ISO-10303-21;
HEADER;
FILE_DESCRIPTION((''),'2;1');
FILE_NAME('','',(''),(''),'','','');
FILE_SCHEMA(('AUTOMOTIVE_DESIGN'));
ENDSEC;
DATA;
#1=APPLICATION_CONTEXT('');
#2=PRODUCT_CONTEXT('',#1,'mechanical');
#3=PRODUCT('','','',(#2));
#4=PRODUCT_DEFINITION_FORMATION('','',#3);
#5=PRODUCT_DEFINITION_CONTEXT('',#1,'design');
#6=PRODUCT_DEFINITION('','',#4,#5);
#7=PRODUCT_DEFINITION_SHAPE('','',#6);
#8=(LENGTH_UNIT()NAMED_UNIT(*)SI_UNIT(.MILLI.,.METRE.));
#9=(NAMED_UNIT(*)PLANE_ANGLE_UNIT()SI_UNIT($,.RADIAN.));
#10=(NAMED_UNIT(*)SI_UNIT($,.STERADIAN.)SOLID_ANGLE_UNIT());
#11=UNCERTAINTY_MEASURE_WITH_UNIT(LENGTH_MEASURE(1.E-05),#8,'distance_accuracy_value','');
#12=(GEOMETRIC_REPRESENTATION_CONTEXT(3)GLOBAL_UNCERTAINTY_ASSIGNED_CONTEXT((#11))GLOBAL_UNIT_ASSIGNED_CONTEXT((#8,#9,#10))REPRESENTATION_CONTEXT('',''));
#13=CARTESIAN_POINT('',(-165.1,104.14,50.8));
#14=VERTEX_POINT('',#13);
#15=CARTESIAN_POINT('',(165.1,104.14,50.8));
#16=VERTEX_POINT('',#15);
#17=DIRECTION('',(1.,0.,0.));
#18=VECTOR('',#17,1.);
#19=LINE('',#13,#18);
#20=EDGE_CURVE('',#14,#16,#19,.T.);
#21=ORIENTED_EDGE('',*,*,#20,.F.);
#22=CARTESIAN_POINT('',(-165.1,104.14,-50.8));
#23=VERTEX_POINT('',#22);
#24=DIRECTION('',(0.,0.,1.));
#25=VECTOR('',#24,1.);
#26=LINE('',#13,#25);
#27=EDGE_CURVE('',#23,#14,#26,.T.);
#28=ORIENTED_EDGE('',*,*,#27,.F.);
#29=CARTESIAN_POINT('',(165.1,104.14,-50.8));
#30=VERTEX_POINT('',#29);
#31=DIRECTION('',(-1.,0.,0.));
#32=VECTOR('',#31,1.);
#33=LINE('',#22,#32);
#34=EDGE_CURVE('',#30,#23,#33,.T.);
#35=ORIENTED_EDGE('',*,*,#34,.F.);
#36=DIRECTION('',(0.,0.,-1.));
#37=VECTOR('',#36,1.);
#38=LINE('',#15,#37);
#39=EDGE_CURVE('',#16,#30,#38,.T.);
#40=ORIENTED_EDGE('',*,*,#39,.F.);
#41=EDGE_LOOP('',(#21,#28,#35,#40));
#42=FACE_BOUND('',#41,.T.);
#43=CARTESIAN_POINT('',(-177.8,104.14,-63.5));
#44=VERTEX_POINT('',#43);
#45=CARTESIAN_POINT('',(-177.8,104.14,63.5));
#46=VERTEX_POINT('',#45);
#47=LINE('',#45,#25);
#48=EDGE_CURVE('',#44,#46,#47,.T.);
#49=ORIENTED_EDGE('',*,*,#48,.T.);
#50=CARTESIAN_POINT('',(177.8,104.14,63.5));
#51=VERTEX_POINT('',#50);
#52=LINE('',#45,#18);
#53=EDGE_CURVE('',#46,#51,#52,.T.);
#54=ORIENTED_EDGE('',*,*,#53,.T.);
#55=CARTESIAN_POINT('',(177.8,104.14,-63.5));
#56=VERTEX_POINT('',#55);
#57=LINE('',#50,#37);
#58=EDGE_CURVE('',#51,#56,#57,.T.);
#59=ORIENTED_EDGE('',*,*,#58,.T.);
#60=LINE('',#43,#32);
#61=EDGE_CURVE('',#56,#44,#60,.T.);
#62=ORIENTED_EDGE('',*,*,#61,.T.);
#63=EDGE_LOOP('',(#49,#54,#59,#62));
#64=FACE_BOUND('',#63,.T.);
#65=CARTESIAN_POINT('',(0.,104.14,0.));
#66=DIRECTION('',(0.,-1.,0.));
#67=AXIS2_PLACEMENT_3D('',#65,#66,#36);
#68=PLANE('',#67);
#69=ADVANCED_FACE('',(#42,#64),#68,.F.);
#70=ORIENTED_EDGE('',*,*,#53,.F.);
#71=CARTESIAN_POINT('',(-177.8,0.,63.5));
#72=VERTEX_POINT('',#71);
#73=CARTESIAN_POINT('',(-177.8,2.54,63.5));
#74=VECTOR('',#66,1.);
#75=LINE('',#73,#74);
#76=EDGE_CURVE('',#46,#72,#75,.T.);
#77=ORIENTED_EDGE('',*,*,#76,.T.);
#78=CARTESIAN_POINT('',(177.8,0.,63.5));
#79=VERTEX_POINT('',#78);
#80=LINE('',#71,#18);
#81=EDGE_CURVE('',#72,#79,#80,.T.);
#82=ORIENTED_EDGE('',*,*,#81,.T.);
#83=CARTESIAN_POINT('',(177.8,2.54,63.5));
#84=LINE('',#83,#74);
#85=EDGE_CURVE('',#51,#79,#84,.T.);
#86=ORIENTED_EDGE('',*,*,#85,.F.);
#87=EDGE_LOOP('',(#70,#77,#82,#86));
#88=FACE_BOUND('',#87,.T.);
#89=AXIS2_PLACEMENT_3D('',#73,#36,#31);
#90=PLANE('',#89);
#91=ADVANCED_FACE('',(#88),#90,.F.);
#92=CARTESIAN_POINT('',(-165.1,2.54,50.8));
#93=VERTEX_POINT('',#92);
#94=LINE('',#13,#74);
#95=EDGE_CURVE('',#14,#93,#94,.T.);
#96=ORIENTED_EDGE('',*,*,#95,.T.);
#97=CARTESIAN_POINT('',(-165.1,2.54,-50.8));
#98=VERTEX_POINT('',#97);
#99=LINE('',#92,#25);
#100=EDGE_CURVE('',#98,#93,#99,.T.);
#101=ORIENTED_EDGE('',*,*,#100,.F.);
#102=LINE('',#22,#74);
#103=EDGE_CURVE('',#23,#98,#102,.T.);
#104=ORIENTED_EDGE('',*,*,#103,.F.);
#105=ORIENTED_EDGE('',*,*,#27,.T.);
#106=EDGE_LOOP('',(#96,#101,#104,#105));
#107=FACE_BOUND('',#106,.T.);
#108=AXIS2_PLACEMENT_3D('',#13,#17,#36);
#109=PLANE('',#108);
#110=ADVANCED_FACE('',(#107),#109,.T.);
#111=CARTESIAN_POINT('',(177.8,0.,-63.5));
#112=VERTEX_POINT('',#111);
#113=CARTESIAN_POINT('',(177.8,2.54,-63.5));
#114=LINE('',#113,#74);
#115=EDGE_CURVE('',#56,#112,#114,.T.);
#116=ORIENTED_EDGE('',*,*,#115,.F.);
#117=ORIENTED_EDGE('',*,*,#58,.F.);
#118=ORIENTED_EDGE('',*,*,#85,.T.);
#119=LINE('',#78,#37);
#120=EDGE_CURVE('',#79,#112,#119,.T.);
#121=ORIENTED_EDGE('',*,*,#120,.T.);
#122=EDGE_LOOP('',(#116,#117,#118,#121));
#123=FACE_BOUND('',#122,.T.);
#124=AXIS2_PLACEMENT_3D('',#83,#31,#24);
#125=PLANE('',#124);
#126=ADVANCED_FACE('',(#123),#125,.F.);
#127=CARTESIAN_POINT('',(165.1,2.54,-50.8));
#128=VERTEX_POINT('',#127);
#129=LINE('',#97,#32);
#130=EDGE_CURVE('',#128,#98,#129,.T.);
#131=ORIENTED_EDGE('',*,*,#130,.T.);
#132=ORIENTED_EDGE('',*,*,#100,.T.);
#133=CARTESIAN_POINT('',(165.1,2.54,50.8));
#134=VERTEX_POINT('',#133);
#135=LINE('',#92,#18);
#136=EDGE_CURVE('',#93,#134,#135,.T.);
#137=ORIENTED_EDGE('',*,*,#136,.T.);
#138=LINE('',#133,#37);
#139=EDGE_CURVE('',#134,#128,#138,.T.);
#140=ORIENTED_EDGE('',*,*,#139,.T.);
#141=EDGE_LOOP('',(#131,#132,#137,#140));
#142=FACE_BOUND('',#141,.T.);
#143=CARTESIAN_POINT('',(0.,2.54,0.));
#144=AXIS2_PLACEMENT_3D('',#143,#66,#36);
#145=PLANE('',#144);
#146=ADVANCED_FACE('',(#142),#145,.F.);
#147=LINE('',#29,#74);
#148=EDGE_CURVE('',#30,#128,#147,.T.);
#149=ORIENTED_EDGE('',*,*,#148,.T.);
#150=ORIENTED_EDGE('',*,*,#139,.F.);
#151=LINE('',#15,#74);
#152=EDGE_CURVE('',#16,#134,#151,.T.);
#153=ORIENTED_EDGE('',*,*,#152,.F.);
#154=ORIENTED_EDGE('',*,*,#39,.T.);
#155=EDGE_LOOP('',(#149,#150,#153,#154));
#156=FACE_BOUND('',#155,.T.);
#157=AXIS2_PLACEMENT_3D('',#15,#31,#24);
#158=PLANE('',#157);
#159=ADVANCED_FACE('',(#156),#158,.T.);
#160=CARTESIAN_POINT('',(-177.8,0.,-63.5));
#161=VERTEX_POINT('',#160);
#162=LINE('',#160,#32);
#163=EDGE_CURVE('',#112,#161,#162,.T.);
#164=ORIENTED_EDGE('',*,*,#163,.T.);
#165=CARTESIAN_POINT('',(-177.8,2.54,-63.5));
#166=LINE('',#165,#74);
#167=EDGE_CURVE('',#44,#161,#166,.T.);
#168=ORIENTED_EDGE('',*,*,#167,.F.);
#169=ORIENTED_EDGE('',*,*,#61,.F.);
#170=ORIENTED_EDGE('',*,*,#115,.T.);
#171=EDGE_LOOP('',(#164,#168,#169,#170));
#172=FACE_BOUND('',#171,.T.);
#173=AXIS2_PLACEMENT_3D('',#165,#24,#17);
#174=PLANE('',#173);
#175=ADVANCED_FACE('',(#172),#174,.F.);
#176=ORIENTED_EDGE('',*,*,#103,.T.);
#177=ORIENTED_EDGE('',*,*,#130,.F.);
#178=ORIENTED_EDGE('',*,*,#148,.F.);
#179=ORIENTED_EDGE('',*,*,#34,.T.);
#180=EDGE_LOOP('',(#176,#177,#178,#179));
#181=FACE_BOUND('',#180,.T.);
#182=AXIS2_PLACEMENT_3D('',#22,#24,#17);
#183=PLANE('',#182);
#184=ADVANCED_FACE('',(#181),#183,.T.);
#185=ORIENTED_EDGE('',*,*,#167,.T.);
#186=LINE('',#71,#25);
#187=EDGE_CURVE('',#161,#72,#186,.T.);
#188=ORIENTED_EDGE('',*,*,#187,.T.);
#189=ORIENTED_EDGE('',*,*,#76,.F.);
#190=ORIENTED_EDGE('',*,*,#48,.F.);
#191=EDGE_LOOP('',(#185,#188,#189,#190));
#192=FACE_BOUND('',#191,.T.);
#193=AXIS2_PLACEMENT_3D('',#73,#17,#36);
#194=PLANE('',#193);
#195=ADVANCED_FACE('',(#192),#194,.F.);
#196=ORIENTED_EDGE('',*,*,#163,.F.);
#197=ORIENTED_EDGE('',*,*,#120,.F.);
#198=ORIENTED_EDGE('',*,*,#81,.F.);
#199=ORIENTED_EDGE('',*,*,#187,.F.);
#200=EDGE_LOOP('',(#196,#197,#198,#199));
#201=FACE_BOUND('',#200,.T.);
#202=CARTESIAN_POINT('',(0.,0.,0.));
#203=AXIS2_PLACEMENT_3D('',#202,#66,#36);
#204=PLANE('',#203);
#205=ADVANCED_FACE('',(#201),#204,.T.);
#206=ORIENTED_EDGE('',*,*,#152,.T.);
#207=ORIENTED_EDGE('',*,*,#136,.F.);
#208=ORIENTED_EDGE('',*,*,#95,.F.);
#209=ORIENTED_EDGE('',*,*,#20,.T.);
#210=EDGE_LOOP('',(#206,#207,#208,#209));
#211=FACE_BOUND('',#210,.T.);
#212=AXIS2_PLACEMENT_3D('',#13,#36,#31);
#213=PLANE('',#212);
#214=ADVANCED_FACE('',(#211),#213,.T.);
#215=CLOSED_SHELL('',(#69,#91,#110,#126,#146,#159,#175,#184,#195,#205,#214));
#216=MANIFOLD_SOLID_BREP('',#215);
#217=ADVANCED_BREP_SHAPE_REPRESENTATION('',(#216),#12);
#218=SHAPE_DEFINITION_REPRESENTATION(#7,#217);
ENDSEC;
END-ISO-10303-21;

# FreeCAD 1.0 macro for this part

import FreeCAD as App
import Part
import Sketcher
from FreeCAD import Vector
Q = App.Units.Quantity

doc = App.newDocument("Part")
params = doc.addObject("Spreadsheet::Sheet", "Params")
for row, (alias, value) in enumerate([
    ("sketch1_width", "14 in"),
    ("sketch1_height", "5 in"),
    ("pad1_length", "0.1 in"),
    ("sketch2_width", "14 in"),
    ("sketch2_width2", "13 in"),
    ("sketch2_height", "5 in"),
    ("sketch2_height2", "4 in"),
    ("pad2_length", "4 in"),
], start=1):
    params.set(f"A{row}", alias)
    params.set(f"B{row}", "=" + value)
    params.setAlias(f"B{row}", alias)

body = doc.addObject("PartDesign::Body", "Body")

# Sketch on XZ plane
sketch1 = body.newObject("Sketcher::SketchObject", "Sketch")
sketch1.AttachmentSupport = (doc.getObject("XZ_Plane"), [""])
sketch1.MapMode = "FlatFace"
sketch1.addGeometry(Part.LineSegment(Vector(-178, -64, 0), Vector(-178, 64, 0)), False)
sketch1.addGeometry(Part.LineSegment(Vector(-178, 64, 0), Vector(178, 64, 0)), False)
sketch1.addGeometry(Part.LineSegment(Vector(178, 64, 0), Vector(178, -64, 0)), False)
sketch1.addGeometry(Part.LineSegment(Vector(178, -64, 0), Vector(-178, -64, 0)), False)
sketch1.addConstraint(Sketcher.Constraint("Coincident", 0, 2, 1, 1))
sketch1.addConstraint(Sketcher.Constraint("Coincident", 1, 2, 2, 1))
sketch1.addConstraint(Sketcher.Constraint("Coincident", 2, 2, 3, 1))
sketch1.addConstraint(Sketcher.Constraint("Coincident", 3, 2, 0, 1))
sketch1.addConstraint(Sketcher.Constraint("Vertical", 0))
sketch1.addConstraint(Sketcher.Constraint("Horizontal", 1))
sketch1.addConstraint(Sketcher.Constraint("Vertical", 2))
sketch1.addConstraint(Sketcher.Constraint("Horizontal", 3))
sketch1.addConstraint(Sketcher.Constraint("Symmetric", 0, 2, 2, 2, -1, 1))
sketch1.addConstraint(Sketcher.Constraint("DistanceX", 1, 1, 1, 2, Q("14 in")))
sketch1.addConstraint(Sketcher.Constraint("DistanceY", 0, 1, 0, 2, Q("5 in")))
sketch1.setExpression("Constraints[9]", "Params.sketch1_width")
sketch1.setExpression("Constraints[10]", "Params.sketch1_height")
pad1 = body.newObject("PartDesign::Pad", "Pad")
pad1.Profile = sketch1
pad1.setExpression("Length", "Params.pad1_length")
pad1.Reversed = True

# Sketch on XZ plane
sketch2 = body.newObject("Sketcher::SketchObject", "Sketch001")
sketch2.AttachmentSupport = (doc.getObject("XZ_Plane"), [""])
sketch2.MapMode = "FlatFace"
sketch2.AttachmentOffset = App.Placement(Vector(0, 0, -0.1 * 25.4), App.Rotation())
sketch2.addGeometry(Part.LineSegment(Vector(-178, -64, 0), Vector(-178, 64, 0)), False)
sketch2.addGeometry(Part.LineSegment(Vector(-178, 64, 0), Vector(178, 64, 0)), False)
sketch2.addGeometry(Part.LineSegment(Vector(178, 64, 0), Vector(178, -64, 0)), False)
sketch2.addGeometry(Part.LineSegment(Vector(178, -64, 0), Vector(-178, -64, 0)), False)
sketch2.addGeometry(Part.LineSegment(Vector(165, 51, 0), Vector(-165, 51, 0)), False)
sketch2.addGeometry(Part.LineSegment(Vector(-165, 51, 0), Vector(-165, -51, 0)), False)
sketch2.addGeometry(Part.LineSegment(Vector(-165, -51, 0), Vector(165, -51, 0)), False)
sketch2.addGeometry(Part.LineSegment(Vector(165, -51, 0), Vector(165, 51, 0)), False)
sketch2.addConstraint(Sketcher.Constraint("Coincident", 0, 2, 1, 1))
sketch2.addConstraint(Sketcher.Constraint("Coincident", 1, 2, 2, 1))
sketch2.addConstraint(Sketcher.Constraint("Coincident", 2, 2, 3, 1))
sketch2.addConstraint(Sketcher.Constraint("Coincident", 3, 2, 0, 1))
sketch2.addConstraint(Sketcher.Constraint("Coincident", 4, 2, 5, 1))
sketch2.addConstraint(Sketcher.Constraint("Coincident", 5, 2, 6, 1))
sketch2.addConstraint(Sketcher.Constraint("Coincident", 6, 2, 7, 1))
sketch2.addConstraint(Sketcher.Constraint("Coincident", 7, 2, 4, 1))
sketch2.addConstraint(Sketcher.Constraint("Vertical", 0))
sketch2.addConstraint(Sketcher.Constraint("Horizontal", 1))
sketch2.addConstraint(Sketcher.Constraint("Vertical", 2))
sketch2.addConstraint(Sketcher.Constraint("Horizontal", 3))
sketch2.addConstraint(Sketcher.Constraint("Horizontal", 4))
sketch2.addConstraint(Sketcher.Constraint("Vertical", 5))
sketch2.addConstraint(Sketcher.Constraint("Horizontal", 6))
sketch2.addConstraint(Sketcher.Constraint("Vertical", 7))
sketch2.addConstraint(Sketcher.Constraint("Symmetric", 0, 2, 2, 2, -1, 1))
sketch2.addConstraint(Sketcher.Constraint("Symmetric", 4, 2, 6, 2, -1, 1))
sketch2.addConstraint(Sketcher.Constraint("DistanceX", 1, 1, 1, 2, Q("14 in")))
sketch2.addConstraint(Sketcher.Constraint("DistanceX", 4, 2, 4, 1, Q("13 in")))
sketch2.addConstraint(Sketcher.Constraint("DistanceY", 0, 1, 0, 2, Q("5 in")))
sketch2.addConstraint(Sketcher.Constraint("DistanceY", 5, 2, 5, 1, Q("4 in")))
sketch2.setExpression("Constraints[18]", "Params.sketch2_width")
sketch2.setExpression("Constraints[19]", "Params.sketch2_width2")
sketch2.setExpression("Constraints[20]", "Params.sketch2_height")
sketch2.setExpression("Constraints[21]", "Params.sketch2_height2")
pad2 = body.newObject("PartDesign::Pad", "Pad001")
pad2.Profile = sketch2
pad2.setExpression("Length", "Params.pad2_length")
pad2.Reversed = True

doc.recompute()
